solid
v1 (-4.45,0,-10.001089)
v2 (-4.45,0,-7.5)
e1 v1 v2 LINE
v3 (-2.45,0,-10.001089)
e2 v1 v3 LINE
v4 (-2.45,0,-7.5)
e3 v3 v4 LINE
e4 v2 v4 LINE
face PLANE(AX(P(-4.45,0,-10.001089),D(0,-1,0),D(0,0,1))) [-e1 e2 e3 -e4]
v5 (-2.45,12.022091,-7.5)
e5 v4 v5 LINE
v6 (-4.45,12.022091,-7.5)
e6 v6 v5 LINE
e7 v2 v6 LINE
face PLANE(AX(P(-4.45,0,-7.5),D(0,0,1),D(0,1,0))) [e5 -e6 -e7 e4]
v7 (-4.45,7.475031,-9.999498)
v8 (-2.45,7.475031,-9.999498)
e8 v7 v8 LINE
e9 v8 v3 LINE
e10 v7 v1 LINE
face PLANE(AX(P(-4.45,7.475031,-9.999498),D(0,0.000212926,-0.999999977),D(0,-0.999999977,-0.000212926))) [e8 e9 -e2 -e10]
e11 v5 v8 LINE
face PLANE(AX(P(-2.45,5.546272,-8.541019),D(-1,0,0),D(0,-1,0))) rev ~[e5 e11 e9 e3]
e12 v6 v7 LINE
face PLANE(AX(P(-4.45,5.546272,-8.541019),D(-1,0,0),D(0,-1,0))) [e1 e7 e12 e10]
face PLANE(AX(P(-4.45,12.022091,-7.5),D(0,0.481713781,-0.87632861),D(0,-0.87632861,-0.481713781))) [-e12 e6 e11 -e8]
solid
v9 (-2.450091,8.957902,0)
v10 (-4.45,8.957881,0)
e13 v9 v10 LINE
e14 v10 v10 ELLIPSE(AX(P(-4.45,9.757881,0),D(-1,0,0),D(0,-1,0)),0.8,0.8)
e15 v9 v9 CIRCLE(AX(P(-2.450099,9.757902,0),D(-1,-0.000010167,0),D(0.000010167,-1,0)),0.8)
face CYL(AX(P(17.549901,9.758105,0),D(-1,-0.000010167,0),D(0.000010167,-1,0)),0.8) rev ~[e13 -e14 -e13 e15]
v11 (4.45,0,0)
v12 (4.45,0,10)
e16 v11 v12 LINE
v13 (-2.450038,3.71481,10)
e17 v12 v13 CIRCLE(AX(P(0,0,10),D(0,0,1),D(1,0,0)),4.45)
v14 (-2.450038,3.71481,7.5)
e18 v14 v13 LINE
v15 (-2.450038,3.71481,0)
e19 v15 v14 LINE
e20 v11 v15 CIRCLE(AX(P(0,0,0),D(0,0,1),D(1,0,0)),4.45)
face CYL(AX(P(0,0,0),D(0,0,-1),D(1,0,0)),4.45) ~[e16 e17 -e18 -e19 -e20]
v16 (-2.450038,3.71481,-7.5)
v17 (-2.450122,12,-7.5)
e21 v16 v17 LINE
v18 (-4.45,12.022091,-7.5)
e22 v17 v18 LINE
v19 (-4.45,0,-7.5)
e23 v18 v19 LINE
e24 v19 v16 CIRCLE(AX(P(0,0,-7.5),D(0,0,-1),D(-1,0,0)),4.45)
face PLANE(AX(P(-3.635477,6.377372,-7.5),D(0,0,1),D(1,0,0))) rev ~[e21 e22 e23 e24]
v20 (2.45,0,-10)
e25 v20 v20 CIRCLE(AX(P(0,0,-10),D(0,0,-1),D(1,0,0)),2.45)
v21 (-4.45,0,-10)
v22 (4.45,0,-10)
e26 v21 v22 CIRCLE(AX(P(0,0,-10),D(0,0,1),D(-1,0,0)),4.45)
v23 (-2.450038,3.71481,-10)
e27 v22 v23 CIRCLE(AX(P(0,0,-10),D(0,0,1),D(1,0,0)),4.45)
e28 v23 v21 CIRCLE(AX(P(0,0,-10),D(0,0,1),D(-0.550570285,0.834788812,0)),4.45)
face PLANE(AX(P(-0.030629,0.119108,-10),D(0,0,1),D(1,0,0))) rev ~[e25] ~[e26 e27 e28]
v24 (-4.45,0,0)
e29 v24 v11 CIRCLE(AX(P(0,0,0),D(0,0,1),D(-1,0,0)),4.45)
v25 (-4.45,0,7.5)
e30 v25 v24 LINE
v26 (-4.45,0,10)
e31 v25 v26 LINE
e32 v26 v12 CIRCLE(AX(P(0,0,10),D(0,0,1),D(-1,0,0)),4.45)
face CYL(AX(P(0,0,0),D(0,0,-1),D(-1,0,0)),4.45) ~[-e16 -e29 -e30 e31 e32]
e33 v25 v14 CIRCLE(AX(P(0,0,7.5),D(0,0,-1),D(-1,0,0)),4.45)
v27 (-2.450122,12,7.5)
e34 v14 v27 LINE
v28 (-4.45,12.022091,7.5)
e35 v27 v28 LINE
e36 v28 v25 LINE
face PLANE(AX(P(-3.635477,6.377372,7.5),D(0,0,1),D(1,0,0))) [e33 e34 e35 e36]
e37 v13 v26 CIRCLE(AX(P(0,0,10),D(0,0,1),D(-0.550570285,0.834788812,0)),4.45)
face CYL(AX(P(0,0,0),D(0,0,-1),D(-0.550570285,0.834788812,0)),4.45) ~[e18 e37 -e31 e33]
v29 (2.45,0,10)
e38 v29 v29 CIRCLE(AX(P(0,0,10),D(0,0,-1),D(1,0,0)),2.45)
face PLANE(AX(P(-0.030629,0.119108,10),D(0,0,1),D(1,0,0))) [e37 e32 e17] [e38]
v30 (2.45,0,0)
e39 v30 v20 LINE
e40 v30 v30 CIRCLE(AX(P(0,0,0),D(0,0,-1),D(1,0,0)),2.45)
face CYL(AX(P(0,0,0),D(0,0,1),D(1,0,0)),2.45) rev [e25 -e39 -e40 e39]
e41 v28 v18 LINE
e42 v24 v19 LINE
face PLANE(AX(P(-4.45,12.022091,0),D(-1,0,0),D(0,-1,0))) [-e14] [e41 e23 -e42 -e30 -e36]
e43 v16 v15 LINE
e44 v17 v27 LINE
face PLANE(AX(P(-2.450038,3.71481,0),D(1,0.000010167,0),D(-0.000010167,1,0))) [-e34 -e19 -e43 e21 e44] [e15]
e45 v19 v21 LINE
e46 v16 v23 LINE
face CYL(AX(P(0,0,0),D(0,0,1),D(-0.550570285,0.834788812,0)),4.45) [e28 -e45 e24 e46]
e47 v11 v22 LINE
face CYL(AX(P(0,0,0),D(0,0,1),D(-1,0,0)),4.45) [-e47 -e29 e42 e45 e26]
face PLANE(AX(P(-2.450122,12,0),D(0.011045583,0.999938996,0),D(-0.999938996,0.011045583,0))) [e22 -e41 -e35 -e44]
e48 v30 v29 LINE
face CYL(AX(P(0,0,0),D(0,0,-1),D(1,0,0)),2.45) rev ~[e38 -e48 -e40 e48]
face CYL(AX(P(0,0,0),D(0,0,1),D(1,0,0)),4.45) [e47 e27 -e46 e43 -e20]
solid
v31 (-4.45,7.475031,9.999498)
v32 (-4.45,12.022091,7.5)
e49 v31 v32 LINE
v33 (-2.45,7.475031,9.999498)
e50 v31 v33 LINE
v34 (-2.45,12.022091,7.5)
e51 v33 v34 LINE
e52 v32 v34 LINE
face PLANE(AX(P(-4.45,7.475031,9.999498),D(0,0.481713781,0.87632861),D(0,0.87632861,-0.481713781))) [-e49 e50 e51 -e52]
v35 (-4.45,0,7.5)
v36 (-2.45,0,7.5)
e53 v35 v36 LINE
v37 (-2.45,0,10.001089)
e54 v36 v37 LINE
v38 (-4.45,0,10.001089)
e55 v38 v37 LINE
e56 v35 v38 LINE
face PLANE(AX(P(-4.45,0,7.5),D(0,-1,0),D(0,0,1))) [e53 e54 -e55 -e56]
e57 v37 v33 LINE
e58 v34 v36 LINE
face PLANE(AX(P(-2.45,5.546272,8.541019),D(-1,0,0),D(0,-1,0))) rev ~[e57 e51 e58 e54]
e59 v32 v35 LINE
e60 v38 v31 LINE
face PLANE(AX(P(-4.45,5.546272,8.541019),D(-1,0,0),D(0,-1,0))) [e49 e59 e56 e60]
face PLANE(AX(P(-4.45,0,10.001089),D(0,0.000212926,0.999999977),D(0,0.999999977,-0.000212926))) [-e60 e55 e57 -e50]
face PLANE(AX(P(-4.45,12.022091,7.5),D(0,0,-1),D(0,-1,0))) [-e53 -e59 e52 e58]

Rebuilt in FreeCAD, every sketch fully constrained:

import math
import FreeCAD as App
import Part
import Sketcher
from FreeCAD import Vector
Q = App.Units.Quantity


def add_polygon(sketch, points):
    """Adds a closed chain of lines whose ends are joined by coincident constraints."""
    first, n = sketch.GeometryCount, len(points)
    for a, b in zip(points, points[1:] + points[:1]):
        sketch.addGeometry(Part.LineSegment(App.Vector(*a, 0), App.Vector(*b, 0)), False)
    for i in range(n):
        sketch.addConstraint(Sketcher.Constraint("Coincident", first + i, 2, first + (i + 1) % n, 1))

doc = App.newDocument("Part")
params = doc.addObject("Spreadsheet::Sheet", "Params")
for row, (alias, value) in enumerate([
    ("sketch1_radius", "4.45 mm"),
    ("sketch1_length", "2 mm"),
    ("pad1_length", "15 mm"),
    ("sketch2_diameter", "4.9 mm"),
    ("sketch2_radius", "4.45 mm"),
    ("pad2_length", "20 mm"),
    ("sketch3_diameter", "1.6 mm"),
    ("hole_diameter", "1.6 mm"),
    ("hole_depth", "20 mm"),
    ("pad3_length", "2 mm"),
    ("pad4_length", "2 mm"),
], start=1):
    params.set(f"A{row}", alias)
    params.set(f"B{row}", "=" + value)
    params.setAlias(f"B{row}", alias)

body = doc.addObject("PartDesign::Body", "Body")

sketch1 = doc.addObject("Sketcher::SketchObject", "Sketch")
body.addObject(sketch1)
sketch1.AttachmentSupport = (doc.XY_Plane, [""])
sketch1.MapMode = "FlatFace"
sketch1.addGeometry([
    Part.ArcOfCircle(Part.Circle(Vector(0, 0, 0), Vector(0, 0, 1), 4.45), math.radians(123.406146), math.radians(180)),
    Part.LineSegment(Vector(-2.450038, 3.71481, 0), Vector(-2.450122, 12, 0)),
    Part.LineSegment(Vector(-2.450122, 12, 0), Vector(-4.45, 12.022091, 0)),
    Part.LineSegment(Vector(-4.45, 12.022091, 0), Vector(-4.45, 0, 0)),
], False)
sketch1.addConstraint([
    Sketcher.Constraint("Coincident", 0, 1, 1, 1),
    Sketcher.Constraint("Coincident", 1, 2, 2, 1),
    Sketcher.Constraint("Coincident", 2, 2, 3, 1),
    Sketcher.Constraint("Tangent", 3, 2, 0, 2),
    Sketcher.Constraint("Vertical", 3),
    Sketcher.Constraint("Coincident", 0, 3, -1, 1),
    Sketcher.Constraint("Radius", 0, Q("4.45 mm")),
    Sketcher.Constraint("Distance", 2, Q("2 mm")),
    Sketcher.Constraint("DistanceY", -1, 1, 1, 2, Q("12 mm")),
    Sketcher.Constraint("DistanceY", 3, 2, 3, 1, Q("12.022091 mm")),
    Sketcher.Constraint("Distance", 1, Q("8.28519 mm")),
])
sketch1.setExpression("Constraints[6]", "Params.sketch1_radius")
sketch1.setExpression("Constraints[7]", "Params.sketch1_length")
pad1 = doc.addObject("PartDesign::Pad", "Pad")
body.addObject(pad1)
pad1.Profile = sketch1
pad1.setExpression("Length", "Params.pad1_length")
pad1.Midplane = True

sketch2 = doc.addObject("Sketcher::SketchObject", "Sketch001")
body.addObject(sketch2)
sketch2.AttachmentSupport = (doc.XY_Plane, [""])
sketch2.MapMode = "FlatFace"
sketch2.addGeometry([
    Part.ArcOfCircle(Part.Circle(Vector(0, 0, 0), Vector(0, 0, 1), 4.45), math.radians(0), math.radians(123.406146)),
    Part.ArcOfCircle(Part.Circle(Vector(0, 0, 0), Vector(0, 0, 1), 4.45), math.radians(123.406146), math.radians(180)),
    Part.ArcOfCircle(Part.Circle(Vector(0, 0, 0), Vector(0, 0, 1), 4.45), math.radians(180), math.radians(360)),
    Part.Circle(Vector(0, 0, 0), Vector(0, 0, 1), 2.45),
], False)
sketch2.addConstraint([
    Sketcher.Constraint("Tangent", 0, 2, 1, 1),
    Sketcher.Constraint("Tangent", 1, 2, 2, 1),
    Sketcher.Constraint("Tangent", 2, 2, 0, 1),
    Sketcher.Constraint("Coincident", 0, 3, -1, 1),
    Sketcher.Constraint("Coincident", 3, 3, -1, 1),
    Sketcher.Constraint("PointOnObject", 1, 2, -1),
    Sketcher.Constraint("PointOnObject", 2, 2, -1),
    Sketcher.Constraint("Diameter", 3, Q("4.9 mm")),
    Sketcher.Constraint("Radius", 0, Q("4.45 mm")),
    Sketcher.Constraint("DistanceY", -1, 1, 0, 2, Q("3.71481 mm")),
])
sketch2.setExpression("Constraints[7]", "Params.sketch2_diameter")
sketch2.setExpression("Constraints[8]", "Params.sketch2_radius")
pad2 = doc.addObject("PartDesign::Pad", "Pad001")
body.addObject(pad2)
pad2.Profile = sketch2
pad2.setExpression("Length", "Params.pad2_length")
pad2.Midplane = True

sketch3 = doc.addObject("Sketcher::SketchObject", "Sketch002")
body.addObject(sketch3)
sketch3.AttachmentSupport = (doc.YZ_Plane, [""])
sketch3.MapMode = "FlatFace"
sketch3.AttachmentOffset = App.Placement(Vector(0, 0, -2.45), App.Rotation())
sketch3.addGeometry(Part.Circle(Vector(9.757902, 0, 0), Vector(0, 0, 1), 0.8), False)
sketch3.addConstraint([
    Sketcher.Constraint("PointOnObject", 0, 3, -1),
    Sketcher.Constraint("Diameter", 0, Q("1.6 mm")),
    Sketcher.Constraint("DistanceX", -1, 1, 0, 3, Q("9.757902 mm")),
])
sketch3.setExpression("Constraints[1]", "Params.sketch3_diameter")
doc.recompute()
hole = doc.addObject("PartDesign::Hole", "Hole")
body.addObject(hole)
hole.Profile = sketch3
hole.ThreadType = "None"
hole.setExpression("Diameter", "Params.hole_diameter")
hole.DepthType = "Dimension"
hole.setExpression("Depth", "Params.hole_depth")
hole.DrillPoint = "Angled"
hole.DrillPointAngle = 118
body2 = doc.addObject("PartDesign::Body", "Body001")

sketch4 = doc.addObject("Sketcher::SketchObject", "Sketch003")
body2.addObject(sketch4)
sketch4.AttachmentSupport = (doc.getObject("YZ_Plane001"), [""])
sketch4.MapMode = "FlatFace"
sketch4.AttachmentOffset = App.Placement(Vector(0, 0, -4.45), App.Rotation())
add_polygon(sketch4, [(0, -7.5), (12.022091, -7.5), (7.475031, -9.999498), (0, -10.001089)])
sketch4.addConstraint([
    Sketcher.Constraint("Horizontal", 0),
    Sketcher.Constraint("Vertical", 3),
    Sketcher.Constraint("PointOnObject", 2, 2, -2),
    Sketcher.Constraint("DistanceY", 0, 2, -1, 1, Q("7.5 mm")),
    Sketcher.Constraint("DistanceX", 0, 1, 0, 2, Q("12.022091 mm")),
    Sketcher.Constraint("DistanceY", 3, 1, 3, 2, Q("2.501089 mm")),
    Sketcher.Constraint("Distance", 1, Q("5.188761 mm")),
    Sketcher.Constraint("Distance", 2, Q("7.475031 mm")),
])
pad3 = doc.addObject("PartDesign::Pad", "Pad002")
body2.addObject(pad3)
pad3.Profile = sketch4
pad3.setExpression("Length", "Params.pad3_length")
body3 = doc.addObject("PartDesign::Body", "Body002")

sketch5 = doc.addObject("Sketcher::SketchObject", "Sketch004")
body3.addObject(sketch5)
sketch5.AttachmentSupport = (doc.getObject("YZ_Plane002"), [""])
sketch5.MapMode = "FlatFace"
sketch5.AttachmentOffset = App.Placement(Vector(0, 0, -4.45), App.Rotation())
add_polygon(sketch5, [(0, 7.5), (0, 10.001089), (7.475031, 9.999498), (12.022091, 7.5)])
sketch5.addConstraint([
    Sketcher.Constraint("Vertical", 0),
    Sketcher.Constraint("Horizontal", 3),
    Sketcher.Constraint("PointOnObject", 0, 2, -2),
    Sketcher.Constraint("DistanceY", -1, 1, 2, 2, Q("7.5 mm")),
    Sketcher.Constraint("DistanceX", 3, 2, 3, 1, Q("12.022091 mm")),
    Sketcher.Constraint("DistanceY", 0, 1, 0, 2, Q("2.501089 mm")),
    Sketcher.Constraint("Distance", 1, Q("7.475031 mm")),
    Sketcher.Constraint("Distance", 2, Q("5.188761 mm")),
])
pad4 = doc.addObject("PartDesign::Pad", "Pad003")
body3.addObject(pad4)
pad4.Profile = sketch5
pad4.setExpression("Length", "Params.pad4_length")

doc.recompute()
